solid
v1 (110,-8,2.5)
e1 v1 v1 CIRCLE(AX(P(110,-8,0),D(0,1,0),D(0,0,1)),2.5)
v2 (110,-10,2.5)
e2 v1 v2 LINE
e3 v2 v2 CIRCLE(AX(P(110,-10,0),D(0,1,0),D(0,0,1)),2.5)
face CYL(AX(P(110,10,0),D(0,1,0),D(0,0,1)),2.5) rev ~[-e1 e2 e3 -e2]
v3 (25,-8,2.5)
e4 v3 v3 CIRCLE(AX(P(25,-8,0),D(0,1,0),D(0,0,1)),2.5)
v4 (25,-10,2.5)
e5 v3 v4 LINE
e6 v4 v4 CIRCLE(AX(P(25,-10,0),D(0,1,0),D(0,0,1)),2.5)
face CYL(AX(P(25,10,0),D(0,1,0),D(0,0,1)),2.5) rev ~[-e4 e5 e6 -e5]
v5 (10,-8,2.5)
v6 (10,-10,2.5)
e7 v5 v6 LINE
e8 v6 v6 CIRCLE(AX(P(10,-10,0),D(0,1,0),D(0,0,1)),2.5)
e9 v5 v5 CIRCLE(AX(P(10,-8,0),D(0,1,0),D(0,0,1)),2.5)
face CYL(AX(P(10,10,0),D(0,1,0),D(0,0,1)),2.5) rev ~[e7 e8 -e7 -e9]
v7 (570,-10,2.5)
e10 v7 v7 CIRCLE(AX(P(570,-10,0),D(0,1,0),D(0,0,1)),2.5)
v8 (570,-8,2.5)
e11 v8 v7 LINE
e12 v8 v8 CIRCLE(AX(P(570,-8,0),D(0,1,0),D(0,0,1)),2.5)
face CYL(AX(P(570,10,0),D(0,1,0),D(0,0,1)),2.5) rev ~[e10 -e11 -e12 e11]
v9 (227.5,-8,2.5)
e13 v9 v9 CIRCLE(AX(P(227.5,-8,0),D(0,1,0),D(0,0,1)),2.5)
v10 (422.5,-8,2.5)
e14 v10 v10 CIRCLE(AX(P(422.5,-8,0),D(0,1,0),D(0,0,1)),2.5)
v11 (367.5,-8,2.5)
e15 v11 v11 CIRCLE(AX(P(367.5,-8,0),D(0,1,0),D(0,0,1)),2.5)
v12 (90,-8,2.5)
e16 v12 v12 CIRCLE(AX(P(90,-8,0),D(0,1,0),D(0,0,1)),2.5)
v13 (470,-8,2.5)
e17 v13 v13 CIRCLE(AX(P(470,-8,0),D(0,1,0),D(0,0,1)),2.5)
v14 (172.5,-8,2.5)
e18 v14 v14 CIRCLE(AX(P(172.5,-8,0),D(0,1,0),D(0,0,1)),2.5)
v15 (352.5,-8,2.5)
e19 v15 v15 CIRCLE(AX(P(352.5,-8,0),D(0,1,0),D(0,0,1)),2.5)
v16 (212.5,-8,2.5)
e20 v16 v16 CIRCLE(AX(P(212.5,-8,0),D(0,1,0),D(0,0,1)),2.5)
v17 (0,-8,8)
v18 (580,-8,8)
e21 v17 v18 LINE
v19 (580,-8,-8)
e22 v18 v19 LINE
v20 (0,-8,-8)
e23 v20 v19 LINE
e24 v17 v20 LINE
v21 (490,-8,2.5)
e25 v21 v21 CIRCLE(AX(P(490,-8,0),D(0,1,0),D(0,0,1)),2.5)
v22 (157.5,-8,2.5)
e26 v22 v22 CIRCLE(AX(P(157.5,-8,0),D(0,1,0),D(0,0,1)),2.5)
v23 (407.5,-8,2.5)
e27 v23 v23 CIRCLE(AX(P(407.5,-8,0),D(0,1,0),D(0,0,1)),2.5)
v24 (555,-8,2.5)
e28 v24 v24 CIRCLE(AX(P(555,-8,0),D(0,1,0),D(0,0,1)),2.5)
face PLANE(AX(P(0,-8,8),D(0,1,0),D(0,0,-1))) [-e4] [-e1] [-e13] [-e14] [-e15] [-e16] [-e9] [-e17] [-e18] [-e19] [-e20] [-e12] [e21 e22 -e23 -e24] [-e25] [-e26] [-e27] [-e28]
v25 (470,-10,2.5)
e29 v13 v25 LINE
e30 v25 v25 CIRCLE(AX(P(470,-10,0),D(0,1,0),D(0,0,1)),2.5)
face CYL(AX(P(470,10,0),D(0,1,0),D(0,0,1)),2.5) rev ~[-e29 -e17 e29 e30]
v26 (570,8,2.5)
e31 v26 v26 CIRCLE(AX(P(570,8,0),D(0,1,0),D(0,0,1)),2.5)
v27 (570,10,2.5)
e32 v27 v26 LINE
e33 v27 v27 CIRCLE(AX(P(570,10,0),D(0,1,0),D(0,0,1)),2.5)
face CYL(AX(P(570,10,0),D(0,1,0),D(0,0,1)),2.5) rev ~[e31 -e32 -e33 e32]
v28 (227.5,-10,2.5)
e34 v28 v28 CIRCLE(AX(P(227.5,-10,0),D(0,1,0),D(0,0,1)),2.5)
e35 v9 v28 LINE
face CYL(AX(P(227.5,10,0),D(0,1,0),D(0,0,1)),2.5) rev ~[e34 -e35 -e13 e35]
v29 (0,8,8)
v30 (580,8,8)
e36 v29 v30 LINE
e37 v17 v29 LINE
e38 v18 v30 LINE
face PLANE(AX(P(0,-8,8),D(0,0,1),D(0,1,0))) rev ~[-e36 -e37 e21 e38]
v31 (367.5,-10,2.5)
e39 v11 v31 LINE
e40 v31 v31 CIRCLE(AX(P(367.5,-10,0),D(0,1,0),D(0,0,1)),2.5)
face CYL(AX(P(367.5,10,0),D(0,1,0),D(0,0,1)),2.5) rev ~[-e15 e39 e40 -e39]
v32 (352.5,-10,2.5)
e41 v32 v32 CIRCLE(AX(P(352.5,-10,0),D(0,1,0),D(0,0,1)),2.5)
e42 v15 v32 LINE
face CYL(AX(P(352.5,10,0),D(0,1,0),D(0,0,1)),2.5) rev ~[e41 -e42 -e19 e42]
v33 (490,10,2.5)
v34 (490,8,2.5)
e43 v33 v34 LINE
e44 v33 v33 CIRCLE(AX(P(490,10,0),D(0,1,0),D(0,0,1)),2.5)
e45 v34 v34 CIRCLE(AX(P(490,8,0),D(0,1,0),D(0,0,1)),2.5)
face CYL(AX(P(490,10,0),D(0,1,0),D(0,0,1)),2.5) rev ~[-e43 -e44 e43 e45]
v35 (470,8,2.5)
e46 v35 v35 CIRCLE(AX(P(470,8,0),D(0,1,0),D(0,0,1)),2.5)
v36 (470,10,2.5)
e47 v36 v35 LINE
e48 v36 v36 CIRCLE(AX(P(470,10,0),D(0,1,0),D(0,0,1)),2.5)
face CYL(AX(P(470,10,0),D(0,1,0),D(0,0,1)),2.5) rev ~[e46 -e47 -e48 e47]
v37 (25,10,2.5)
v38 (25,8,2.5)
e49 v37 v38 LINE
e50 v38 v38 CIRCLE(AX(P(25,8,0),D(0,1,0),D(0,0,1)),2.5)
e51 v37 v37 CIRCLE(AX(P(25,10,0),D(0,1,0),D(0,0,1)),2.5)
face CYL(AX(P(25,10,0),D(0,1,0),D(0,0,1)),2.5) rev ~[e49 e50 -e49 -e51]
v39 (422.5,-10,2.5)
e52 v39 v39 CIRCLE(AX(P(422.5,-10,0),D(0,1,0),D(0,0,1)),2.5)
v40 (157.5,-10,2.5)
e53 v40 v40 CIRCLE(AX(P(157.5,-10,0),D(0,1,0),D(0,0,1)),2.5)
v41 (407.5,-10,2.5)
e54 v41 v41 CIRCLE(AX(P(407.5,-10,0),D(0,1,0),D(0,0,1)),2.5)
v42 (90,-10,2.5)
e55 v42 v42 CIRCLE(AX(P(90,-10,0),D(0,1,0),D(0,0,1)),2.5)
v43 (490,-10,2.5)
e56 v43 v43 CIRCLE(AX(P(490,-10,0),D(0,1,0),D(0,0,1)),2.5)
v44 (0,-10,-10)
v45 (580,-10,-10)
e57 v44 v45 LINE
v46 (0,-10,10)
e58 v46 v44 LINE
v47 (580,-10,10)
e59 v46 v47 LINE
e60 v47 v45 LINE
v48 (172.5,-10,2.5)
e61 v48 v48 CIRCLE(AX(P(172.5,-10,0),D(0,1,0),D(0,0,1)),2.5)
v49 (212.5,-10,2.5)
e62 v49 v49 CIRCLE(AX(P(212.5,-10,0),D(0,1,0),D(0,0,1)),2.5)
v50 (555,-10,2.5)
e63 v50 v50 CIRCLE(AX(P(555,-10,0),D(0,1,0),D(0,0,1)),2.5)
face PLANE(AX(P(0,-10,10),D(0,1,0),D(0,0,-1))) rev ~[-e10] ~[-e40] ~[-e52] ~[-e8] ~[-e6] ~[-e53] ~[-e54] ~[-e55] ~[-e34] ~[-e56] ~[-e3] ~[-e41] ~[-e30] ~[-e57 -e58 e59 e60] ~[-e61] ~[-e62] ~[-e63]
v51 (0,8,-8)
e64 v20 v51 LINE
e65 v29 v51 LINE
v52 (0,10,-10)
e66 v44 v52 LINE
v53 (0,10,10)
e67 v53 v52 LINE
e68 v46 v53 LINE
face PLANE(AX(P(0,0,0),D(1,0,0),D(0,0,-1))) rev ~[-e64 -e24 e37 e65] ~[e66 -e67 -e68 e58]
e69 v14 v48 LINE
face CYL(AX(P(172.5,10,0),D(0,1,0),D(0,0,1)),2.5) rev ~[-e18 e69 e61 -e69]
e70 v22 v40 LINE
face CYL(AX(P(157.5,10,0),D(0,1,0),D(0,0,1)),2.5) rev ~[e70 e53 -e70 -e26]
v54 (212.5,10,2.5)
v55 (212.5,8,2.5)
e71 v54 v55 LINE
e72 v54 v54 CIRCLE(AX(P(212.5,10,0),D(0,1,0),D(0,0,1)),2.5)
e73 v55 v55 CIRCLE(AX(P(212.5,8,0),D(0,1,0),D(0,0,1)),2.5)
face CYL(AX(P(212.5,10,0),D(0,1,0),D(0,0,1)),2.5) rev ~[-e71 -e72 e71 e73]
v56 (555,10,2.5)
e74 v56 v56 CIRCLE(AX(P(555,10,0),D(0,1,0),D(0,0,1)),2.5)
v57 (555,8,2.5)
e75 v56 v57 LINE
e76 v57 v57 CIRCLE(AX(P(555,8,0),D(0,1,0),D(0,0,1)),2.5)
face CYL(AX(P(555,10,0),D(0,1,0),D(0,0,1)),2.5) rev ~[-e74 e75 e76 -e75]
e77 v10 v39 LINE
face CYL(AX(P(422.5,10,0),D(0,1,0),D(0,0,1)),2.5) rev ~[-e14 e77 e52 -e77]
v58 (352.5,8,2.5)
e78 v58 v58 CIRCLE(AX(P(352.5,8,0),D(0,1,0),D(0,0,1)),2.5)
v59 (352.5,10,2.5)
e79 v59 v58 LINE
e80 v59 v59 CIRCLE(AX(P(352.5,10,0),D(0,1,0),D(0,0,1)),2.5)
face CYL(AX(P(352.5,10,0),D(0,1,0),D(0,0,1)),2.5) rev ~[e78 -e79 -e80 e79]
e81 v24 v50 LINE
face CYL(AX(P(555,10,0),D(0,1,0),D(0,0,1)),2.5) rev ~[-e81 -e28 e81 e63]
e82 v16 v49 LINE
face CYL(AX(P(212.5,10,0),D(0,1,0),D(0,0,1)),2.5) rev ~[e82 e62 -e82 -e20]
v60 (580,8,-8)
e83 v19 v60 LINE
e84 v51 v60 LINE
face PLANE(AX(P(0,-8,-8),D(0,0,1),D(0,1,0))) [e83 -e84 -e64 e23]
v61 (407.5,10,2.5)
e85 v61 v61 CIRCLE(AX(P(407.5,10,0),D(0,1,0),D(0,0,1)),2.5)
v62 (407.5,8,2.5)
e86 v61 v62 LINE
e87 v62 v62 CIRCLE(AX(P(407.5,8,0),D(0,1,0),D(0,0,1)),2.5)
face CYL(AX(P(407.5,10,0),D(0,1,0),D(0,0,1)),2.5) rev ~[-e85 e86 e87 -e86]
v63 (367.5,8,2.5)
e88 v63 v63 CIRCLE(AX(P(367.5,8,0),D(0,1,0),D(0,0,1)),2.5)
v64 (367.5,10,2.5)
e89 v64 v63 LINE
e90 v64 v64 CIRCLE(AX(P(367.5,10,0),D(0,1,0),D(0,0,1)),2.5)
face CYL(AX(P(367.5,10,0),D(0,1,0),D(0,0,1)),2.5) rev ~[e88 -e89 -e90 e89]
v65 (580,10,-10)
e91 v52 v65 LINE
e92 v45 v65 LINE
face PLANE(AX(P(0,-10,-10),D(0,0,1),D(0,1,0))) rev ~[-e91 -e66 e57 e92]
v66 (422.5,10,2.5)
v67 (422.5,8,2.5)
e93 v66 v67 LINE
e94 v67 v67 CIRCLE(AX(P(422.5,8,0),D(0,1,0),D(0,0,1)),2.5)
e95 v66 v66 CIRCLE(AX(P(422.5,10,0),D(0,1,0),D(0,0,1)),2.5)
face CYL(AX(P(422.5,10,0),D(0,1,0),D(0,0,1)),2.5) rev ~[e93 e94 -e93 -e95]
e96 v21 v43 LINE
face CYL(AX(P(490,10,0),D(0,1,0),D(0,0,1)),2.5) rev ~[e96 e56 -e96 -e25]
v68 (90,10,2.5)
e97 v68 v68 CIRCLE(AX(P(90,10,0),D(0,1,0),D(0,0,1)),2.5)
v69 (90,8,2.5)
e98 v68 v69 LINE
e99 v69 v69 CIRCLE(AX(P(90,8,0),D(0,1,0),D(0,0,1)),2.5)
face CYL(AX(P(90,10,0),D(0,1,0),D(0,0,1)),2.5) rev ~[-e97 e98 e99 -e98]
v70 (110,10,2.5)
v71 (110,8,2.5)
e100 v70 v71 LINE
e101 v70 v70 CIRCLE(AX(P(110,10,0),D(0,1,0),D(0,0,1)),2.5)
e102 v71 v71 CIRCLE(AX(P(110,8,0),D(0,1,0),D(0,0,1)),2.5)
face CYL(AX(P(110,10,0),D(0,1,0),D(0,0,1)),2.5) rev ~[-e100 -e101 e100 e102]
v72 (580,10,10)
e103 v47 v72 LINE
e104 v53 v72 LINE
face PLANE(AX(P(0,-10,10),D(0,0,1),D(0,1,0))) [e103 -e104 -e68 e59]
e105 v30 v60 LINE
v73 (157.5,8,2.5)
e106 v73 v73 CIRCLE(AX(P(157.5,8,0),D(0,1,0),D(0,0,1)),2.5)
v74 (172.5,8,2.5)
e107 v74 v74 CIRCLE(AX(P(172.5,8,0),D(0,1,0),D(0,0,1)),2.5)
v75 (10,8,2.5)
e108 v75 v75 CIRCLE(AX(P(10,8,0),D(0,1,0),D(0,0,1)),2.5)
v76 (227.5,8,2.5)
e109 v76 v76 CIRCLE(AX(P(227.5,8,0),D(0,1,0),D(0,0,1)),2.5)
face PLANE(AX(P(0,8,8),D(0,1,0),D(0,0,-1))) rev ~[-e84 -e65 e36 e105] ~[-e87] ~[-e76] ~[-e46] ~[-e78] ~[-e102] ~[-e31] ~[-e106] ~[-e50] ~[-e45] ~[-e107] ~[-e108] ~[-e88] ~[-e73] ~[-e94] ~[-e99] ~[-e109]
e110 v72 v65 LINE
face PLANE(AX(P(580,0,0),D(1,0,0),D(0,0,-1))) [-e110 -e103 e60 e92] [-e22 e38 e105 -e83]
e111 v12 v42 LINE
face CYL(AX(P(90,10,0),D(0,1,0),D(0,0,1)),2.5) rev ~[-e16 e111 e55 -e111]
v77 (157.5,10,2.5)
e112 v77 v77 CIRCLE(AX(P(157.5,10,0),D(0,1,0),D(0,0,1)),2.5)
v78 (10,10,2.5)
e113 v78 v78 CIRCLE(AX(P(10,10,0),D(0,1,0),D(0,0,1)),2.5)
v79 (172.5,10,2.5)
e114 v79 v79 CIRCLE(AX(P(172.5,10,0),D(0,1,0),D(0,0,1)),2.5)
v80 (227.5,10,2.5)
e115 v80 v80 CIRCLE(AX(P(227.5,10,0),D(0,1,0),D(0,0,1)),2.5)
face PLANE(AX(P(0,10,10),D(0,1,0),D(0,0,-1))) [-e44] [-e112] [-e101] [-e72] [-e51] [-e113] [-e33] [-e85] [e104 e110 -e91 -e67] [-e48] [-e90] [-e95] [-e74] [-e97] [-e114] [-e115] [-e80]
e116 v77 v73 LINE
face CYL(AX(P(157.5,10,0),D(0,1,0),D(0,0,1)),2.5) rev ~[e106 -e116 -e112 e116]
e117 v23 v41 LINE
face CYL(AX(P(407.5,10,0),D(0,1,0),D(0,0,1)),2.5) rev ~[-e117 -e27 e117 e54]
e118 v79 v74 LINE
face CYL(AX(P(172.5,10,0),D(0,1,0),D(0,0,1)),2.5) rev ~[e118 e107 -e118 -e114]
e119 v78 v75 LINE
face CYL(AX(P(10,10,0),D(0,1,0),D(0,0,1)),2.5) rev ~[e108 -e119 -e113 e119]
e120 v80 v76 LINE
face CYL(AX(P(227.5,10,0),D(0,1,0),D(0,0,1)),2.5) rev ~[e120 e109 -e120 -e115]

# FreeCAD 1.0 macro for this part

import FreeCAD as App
import Part
import Sketcher


def add_polygon(sketch, points):
    """Adds a closed chain of lines whose ends are joined by coincident constraints."""
    first, n = sketch.GeometryCount, len(points)
    for a, b in zip(points, points[1:] + points[:1]):
        sketch.addGeometry(Part.LineSegment(App.Vector(*a, 0), App.Vector(*b, 0)), False)
    for i in range(n):
        sketch.addConstraint(Sketcher.Constraint("Coincident", first + i, 2, first + (i + 1) % n, 1))

doc = App.newDocument("Part")
params = doc.addObject("Spreadsheet::Sheet", "Params")
for row, (alias, value) in enumerate([
    ("sketch1_width", "20 mm"),
    ("sketch1_width2", "16 mm"),
    ("pad1_length", "580 mm"),
    ("sketch2_diameter", "5 mm"),
    ("sketch3_diameter", "5 mm"),
    ("sketch4_diameter", "5 mm"),
], start=1):
    params.set(f"A{row}", alias)
    params.set(f"B{row}", "=" + value)
    params.setAlias(f"B{row}", alias)

body = doc.addObject("PartDesign::Body", "Body")

sketch1 = body.newObject("Sketcher::SketchObject", "Sketch")
sketch1.AttachmentSupport = (doc.getObject("YZ_Plane"), [""])
sketch1.MapMode = "FlatFace"
add_polygon(sketch1, [(10, 10), (-10, 10), (-10, -10), (10, -10)])
add_polygon(sketch1, [(-8, -8), (-8, 8), (8, 8), (8, -8)])
sketch1.addConstraint(Sketcher.Constraint("Horizontal", 0))
sketch1.addConstraint(Sketcher.Constraint("Vertical", 1))
sketch1.addConstraint(Sketcher.Constraint("Horizontal", 2))
sketch1.addConstraint(Sketcher.Constraint("Vertical", 3))
sketch1.addConstraint(Sketcher.Constraint("Vertical", 4))
sketch1.addConstraint(Sketcher.Constraint("Horizontal", 5))
sketch1.addConstraint(Sketcher.Constraint("Vertical", 6))
sketch1.addConstraint(Sketcher.Constraint("Horizontal", 7))
sketch1.addConstraint(Sketcher.Constraint("Symmetric", 0, 2, 2, 2, -1, 1))
sketch1.addConstraint(Sketcher.Constraint("Symmetric", 4, 2, 6, 2, -1, 1))
sketch1.addConstraint(Sketcher.Constraint("Equal", 2, 1))
sketch1.addConstraint(Sketcher.Constraint("Equal", 7, 4))
sketch1.addConstraint(Sketcher.Constraint("DistanceX", 0, 2, 0, 1, 20.0))
sketch1.addConstraint(Sketcher.Constraint("DistanceX", 5, 1, 5, 2, 16.0))
sketch1.setExpression("Constraints[20]", "Params.sketch1_width")
sketch1.setExpression("Constraints[21]", "Params.sketch1_width2")
pad1 = body.newObject("PartDesign::Pad", "Pad")
pad1.Profile = sketch1
pad1.setExpression("Length", "Params.pad1_length")

sketch2 = body.newObject("Sketcher::SketchObject", "Sketch001")
sketch2.AttachmentSupport = (doc.getObject("XZ_Plane"), [""])
sketch2.MapMode = "FlatFace"
sketch2.AttachmentOffset = App.Placement(App.Vector(0, 0, -10), App.Rotation())
sketch2.addGeometry(Part.Circle(App.Vector(10, 0, 0), App.Vector(0, 0, 1), 2.5), False)
sketch2.addGeometry(Part.Circle(App.Vector(570, 0, 0), App.Vector(0, 0, 1), 2.5), False)
sketch2.addGeometry(Part.Circle(App.Vector(25, 0, 0), App.Vector(0, 0, 1), 2.5), False)
sketch2.addGeometry(Part.Circle(App.Vector(555, 0, 0), App.Vector(0, 0, 1), 2.5), False)
sketch2.addConstraint(Sketcher.Constraint("Equal", 0, 1))
sketch2.addConstraint(Sketcher.Constraint("Equal", 1, 2))
sketch2.addConstraint(Sketcher.Constraint("Equal", 2, 3))
sketch2.addConstraint(Sketcher.Constraint("PointOnObject", 0, 3, -1))
sketch2.addConstraint(Sketcher.Constraint("PointOnObject", 1, 3, -1))
sketch2.addConstraint(Sketcher.Constraint("PointOnObject", 2, 3, -1))
sketch2.addConstraint(Sketcher.Constraint("PointOnObject", 3, 3, -1))
sketch2.addConstraint(Sketcher.Constraint("Diameter", 0, 5.0))
sketch2.addConstraint(Sketcher.Constraint("DistanceX", -1, 1, 0, 3, 10.0))
sketch2.addConstraint(Sketcher.Constraint("DistanceX", -1, 1, 1, 3, 570.0))
sketch2.addConstraint(Sketcher.Constraint("DistanceX", -1, 1, 2, 3, 25.0))
sketch2.addConstraint(Sketcher.Constraint("DistanceX", -1, 1, 3, 3, 555.0))
sketch2.setExpression("Constraints[7]", "Params.sketch2_diameter")
pocket1 = body.newObject("PartDesign::Pocket", "Pocket")
pocket1.Profile = sketch2
pocket1.Type = "ThroughAll"
pocket1.Reversed = True

sketch3 = body.newObject("Sketcher::SketchObject", "Sketch002")
sketch3.AttachmentSupport = (doc.getObject("XZ_Plane"), [""])
sketch3.MapMode = "FlatFace"
sketch3.AttachmentOffset = App.Placement(App.Vector(0, 0, -10), App.Rotation())
sketch3.addGeometry(Part.Circle(App.Vector(110, 0, 0), App.Vector(0, 0, 1), 2.5), False)
sketch3.addGeometry(Part.Circle(App.Vector(90, 0, 0), App.Vector(0, 0, 1), 2.5), False)
sketch3.addGeometry(Part.Circle(App.Vector(490, 0, 0), App.Vector(0, 0, 1), 2.5), False)
sketch3.addGeometry(Part.Circle(App.Vector(470, 0, 0), App.Vector(0, 0, 1), 2.5), False)
sketch3.addConstraint(Sketcher.Constraint("Equal", 0, 1))
sketch3.addConstraint(Sketcher.Constraint("Equal", 1, 2))
sketch3.addConstraint(Sketcher.Constraint("Equal", 2, 3))
sketch3.addConstraint(Sketcher.Constraint("PointOnObject", 0, 3, -1))
sketch3.addConstraint(Sketcher.Constraint("PointOnObject", 1, 3, -1))
sketch3.addConstraint(Sketcher.Constraint("PointOnObject", 2, 3, -1))
sketch3.addConstraint(Sketcher.Constraint("PointOnObject", 3, 3, -1))
sketch3.addConstraint(Sketcher.Constraint("Diameter", 0, 5.0))
sketch3.addConstraint(Sketcher.Constraint("DistanceX", -1, 1, 0, 3, 110.0))
sketch3.addConstraint(Sketcher.Constraint("DistanceX", -1, 1, 1, 3, 90.0))
sketch3.addConstraint(Sketcher.Constraint("DistanceX", -1, 1, 2, 3, 490.0))
sketch3.addConstraint(Sketcher.Constraint("DistanceX", -1, 1, 3, 3, 470.0))
sketch3.setExpression("Constraints[7]", "Params.sketch3_diameter")
pocket2 = body.newObject("PartDesign::Pocket", "Pocket001")
pocket2.Profile = sketch3
pocket2.Type = "ThroughAll"
pocket2.Reversed = True

sketch4 = body.newObject("Sketcher::SketchObject", "Sketch003")
sketch4.AttachmentSupport = (doc.getObject("XZ_Plane"), [""])
sketch4.MapMode = "FlatFace"
sketch4.AttachmentOffset = App.Placement(App.Vector(0, 0, -10), App.Rotation())
sketch4.addGeometry(Part.Circle(App.Vector(157.5, 0, 0), App.Vector(0, 0, 1), 2.5), False)
sketch4.addGeometry(Part.Circle(App.Vector(172.5, 0, 0), App.Vector(0, 0, 1), 2.5), False)
sketch4.addGeometry(Part.Circle(App.Vector(212.5, 0, 0), App.Vector(0, 0, 1), 2.5), False)
sketch4.addGeometry(Part.Circle(App.Vector(227.5, 0, 0), App.Vector(0, 0, 1), 2.5), False)
sketch4.addGeometry(Part.Circle(App.Vector(352.5, 0, 0), App.Vector(0, 0, 1), 2.5), False)
sketch4.addGeometry(Part.Circle(App.Vector(367.5, 0, 0), App.Vector(0, 0, 1), 2.5), False)
sketch4.addGeometry(Part.Circle(App.Vector(407.5, 0, 0), App.Vector(0, 0, 1), 2.5), False)
sketch4.addGeometry(Part.Circle(App.Vector(422.5, 0, 0), App.Vector(0, 0, 1), 2.5), False)
sketch4.addConstraint(Sketcher.Constraint("Equal", 0, 1))
sketch4.addConstraint(Sketcher.Constraint("Equal", 1, 2))
sketch4.addConstraint(Sketcher.Constraint("Equal", 2, 3))
sketch4.addConstraint(Sketcher.Constraint("Equal", 3, 4))
sketch4.addConstraint(Sketcher.Constraint("Equal", 4, 5))
sketch4.addConstraint(Sketcher.Constraint("Equal", 5, 6))
sketch4.addConstraint(Sketcher.Constraint("Equal", 6, 7))
sketch4.addConstraint(Sketcher.Constraint("PointOnObject", 0, 3, -1))
sketch4.addConstraint(Sketcher.Constraint("PointOnObject", 1, 3, -1))
sketch4.addConstraint(Sketcher.Constraint("PointOnObject", 2, 3, -1))
sketch4.addConstraint(Sketcher.Constraint("PointOnObject", 3, 3, -1))
sketch4.addConstraint(Sketcher.Constraint("PointOnObject", 4, 3, -1))
sketch4.addConstraint(Sketcher.Constraint("PointOnObject", 5, 3, -1))
sketch4.addConstraint(Sketcher.Constraint("PointOnObject", 6, 3, -1))
sketch4.addConstraint(Sketcher.Constraint("PointOnObject", 7, 3, -1))
sketch4.addConstraint(Sketcher.Constraint("Diameter", 0, 5.0))
sketch4.addConstraint(Sketcher.Constraint("DistanceX", 0, 3, 1, 3, 15.0))
sketch4.addConstraint(Sketcher.Constraint("DistanceX", 1, 3, 2, 3, 40.0))
sketch4.addConstraint(Sketcher.Constraint("DistanceX", 2, 3, 3, 3, 15.0))
sketch4.addConstraint(Sketcher.Constraint("DistanceX", 3, 3, 4, 3, 125.0))
sketch4.addConstraint(Sketcher.Constraint("DistanceX", 4, 3, 5, 3, 15.0))
sketch4.addConstraint(Sketcher.Constraint("DistanceX", 5, 3, 6, 3, 40.0))
sketch4.addConstraint(Sketcher.Constraint("DistanceX", 6, 3, 7, 3, 15.0))
sketch4.addConstraint(Sketcher.Constraint("DistanceX", -1, 1, 0, 3, 157.5))
sketch4.setExpression("Constraints[15]", "Params.sketch4_diameter")
pocket3 = body.newObject("PartDesign::Pocket", "Pocket002")
pocket3.Profile = sketch4
pocket3.Type = "ThroughAll"
pocket3.Reversed = True

doc.recompute()
